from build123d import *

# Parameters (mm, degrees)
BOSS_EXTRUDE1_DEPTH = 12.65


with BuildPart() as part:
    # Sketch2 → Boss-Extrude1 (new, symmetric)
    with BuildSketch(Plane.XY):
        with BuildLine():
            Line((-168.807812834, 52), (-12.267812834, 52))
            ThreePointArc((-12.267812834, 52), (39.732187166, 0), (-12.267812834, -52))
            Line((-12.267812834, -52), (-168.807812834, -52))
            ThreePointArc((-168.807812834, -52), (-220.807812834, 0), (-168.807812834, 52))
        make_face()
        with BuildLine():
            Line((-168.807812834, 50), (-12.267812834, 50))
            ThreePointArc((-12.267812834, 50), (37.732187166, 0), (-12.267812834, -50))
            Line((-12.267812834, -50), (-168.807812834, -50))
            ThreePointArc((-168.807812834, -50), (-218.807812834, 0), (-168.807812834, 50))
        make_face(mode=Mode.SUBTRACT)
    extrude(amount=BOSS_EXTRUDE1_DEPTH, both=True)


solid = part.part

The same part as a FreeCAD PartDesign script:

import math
import FreeCAD as App
import Part
import Sketcher
from FreeCAD import Vector
Q = App.Units.Quantity

doc = App.newDocument("Part")
body = doc.addObject("PartDesign::Body", "Body")

# Sketch on XY plane
sketch1 = doc.addObject("Sketcher::SketchObject", "Sketch")
body.addObject(sketch1)
sketch1.AttachmentSupport = (doc.XY_Plane, [""])
sketch1.MapMode = "FlatFace"
sketch1.addGeometry([
    Part.LineSegment(Vector(-12, 52, 0), Vector(-169, 52, 0)),  # 0
    Part.ArcOfCircle(Part.Circle(Vector(-169, 0, 0), Vector(0, 0, 1), 52), math.radians(90), math.radians(270)),  # 1
    Part.LineSegment(Vector(-169, -52, 0), Vector(-12, -52, 0)),  # 2
    Part.ArcOfCircle(Part.Circle(Vector(-12, 0, 0), Vector(0, 0, 1), 52), math.radians(-90), math.radians(90)),  # 3
    Part.LineSegment(Vector(-169, 50, 0), Vector(-12, 50, 0)),  # 4
    Part.ArcOfCircle(Part.Circle(Vector(-12, 0, 0), Vector(0, 0, 1), 50), math.radians(-90), math.radians(90)),  # 5
    Part.LineSegment(Vector(-12, -50, 0), Vector(-169, -50, 0)),  # 6
    Part.ArcOfCircle(Part.Circle(Vector(-169, 0, 0), Vector(0, 0, 1), 50), math.radians(90), math.radians(270)),  # 7
], False)
sketch1.addConstraint([
    Sketcher.Constraint("Tangent", 0, 2, 1, 1),
    Sketcher.Constraint("Tangent", 1, 2, 2, 1),
    Sketcher.Constraint("Tangent", 2, 2, 3, 1),
    Sketcher.Constraint("Tangent", 3, 2, 0, 1),
    Sketcher.Constraint("Tangent", 4, 2, 5, 2),
    Sketcher.Constraint("Tangent", 5, 1, 6, 1),
    Sketcher.Constraint("Tangent", 6, 2, 7, 2),
    Sketcher.Constraint("Tangent", 7, 1, 4, 1),
    Sketcher.Constraint("Horizontal", 0),
    Sketcher.Constraint("Horizontal", 2),
    Sketcher.Constraint("Horizontal", 4),
    Sketcher.Constraint("Horizontal", 6),
    Sketcher.Constraint("Coincident", 5, 3, 3, 3),
    Sketcher.Constraint("PointOnObject", 1, 3, -1),
    Sketcher.Constraint("Vertical", 7, 3, 0, 2),
    Sketcher.Constraint("Radius", 1, Q("52 mm")),
    Sketcher.Constraint("Radius", 5, Q("50 mm")),
    Sketcher.Constraint("DistanceX", 0, 2, 0, 1, Q("156.54 mm")),
    Sketcher.Constraint("DistanceX", 1, 3, -1, 1, Q("168.807813 mm")),
])
pad1 = doc.addObject("PartDesign::Pad", "Pad")
body.addObject(pad1)
pad1.Profile = sketch1
pad1.Length = 25.3
pad1.Midplane = True

doc.recompute()
